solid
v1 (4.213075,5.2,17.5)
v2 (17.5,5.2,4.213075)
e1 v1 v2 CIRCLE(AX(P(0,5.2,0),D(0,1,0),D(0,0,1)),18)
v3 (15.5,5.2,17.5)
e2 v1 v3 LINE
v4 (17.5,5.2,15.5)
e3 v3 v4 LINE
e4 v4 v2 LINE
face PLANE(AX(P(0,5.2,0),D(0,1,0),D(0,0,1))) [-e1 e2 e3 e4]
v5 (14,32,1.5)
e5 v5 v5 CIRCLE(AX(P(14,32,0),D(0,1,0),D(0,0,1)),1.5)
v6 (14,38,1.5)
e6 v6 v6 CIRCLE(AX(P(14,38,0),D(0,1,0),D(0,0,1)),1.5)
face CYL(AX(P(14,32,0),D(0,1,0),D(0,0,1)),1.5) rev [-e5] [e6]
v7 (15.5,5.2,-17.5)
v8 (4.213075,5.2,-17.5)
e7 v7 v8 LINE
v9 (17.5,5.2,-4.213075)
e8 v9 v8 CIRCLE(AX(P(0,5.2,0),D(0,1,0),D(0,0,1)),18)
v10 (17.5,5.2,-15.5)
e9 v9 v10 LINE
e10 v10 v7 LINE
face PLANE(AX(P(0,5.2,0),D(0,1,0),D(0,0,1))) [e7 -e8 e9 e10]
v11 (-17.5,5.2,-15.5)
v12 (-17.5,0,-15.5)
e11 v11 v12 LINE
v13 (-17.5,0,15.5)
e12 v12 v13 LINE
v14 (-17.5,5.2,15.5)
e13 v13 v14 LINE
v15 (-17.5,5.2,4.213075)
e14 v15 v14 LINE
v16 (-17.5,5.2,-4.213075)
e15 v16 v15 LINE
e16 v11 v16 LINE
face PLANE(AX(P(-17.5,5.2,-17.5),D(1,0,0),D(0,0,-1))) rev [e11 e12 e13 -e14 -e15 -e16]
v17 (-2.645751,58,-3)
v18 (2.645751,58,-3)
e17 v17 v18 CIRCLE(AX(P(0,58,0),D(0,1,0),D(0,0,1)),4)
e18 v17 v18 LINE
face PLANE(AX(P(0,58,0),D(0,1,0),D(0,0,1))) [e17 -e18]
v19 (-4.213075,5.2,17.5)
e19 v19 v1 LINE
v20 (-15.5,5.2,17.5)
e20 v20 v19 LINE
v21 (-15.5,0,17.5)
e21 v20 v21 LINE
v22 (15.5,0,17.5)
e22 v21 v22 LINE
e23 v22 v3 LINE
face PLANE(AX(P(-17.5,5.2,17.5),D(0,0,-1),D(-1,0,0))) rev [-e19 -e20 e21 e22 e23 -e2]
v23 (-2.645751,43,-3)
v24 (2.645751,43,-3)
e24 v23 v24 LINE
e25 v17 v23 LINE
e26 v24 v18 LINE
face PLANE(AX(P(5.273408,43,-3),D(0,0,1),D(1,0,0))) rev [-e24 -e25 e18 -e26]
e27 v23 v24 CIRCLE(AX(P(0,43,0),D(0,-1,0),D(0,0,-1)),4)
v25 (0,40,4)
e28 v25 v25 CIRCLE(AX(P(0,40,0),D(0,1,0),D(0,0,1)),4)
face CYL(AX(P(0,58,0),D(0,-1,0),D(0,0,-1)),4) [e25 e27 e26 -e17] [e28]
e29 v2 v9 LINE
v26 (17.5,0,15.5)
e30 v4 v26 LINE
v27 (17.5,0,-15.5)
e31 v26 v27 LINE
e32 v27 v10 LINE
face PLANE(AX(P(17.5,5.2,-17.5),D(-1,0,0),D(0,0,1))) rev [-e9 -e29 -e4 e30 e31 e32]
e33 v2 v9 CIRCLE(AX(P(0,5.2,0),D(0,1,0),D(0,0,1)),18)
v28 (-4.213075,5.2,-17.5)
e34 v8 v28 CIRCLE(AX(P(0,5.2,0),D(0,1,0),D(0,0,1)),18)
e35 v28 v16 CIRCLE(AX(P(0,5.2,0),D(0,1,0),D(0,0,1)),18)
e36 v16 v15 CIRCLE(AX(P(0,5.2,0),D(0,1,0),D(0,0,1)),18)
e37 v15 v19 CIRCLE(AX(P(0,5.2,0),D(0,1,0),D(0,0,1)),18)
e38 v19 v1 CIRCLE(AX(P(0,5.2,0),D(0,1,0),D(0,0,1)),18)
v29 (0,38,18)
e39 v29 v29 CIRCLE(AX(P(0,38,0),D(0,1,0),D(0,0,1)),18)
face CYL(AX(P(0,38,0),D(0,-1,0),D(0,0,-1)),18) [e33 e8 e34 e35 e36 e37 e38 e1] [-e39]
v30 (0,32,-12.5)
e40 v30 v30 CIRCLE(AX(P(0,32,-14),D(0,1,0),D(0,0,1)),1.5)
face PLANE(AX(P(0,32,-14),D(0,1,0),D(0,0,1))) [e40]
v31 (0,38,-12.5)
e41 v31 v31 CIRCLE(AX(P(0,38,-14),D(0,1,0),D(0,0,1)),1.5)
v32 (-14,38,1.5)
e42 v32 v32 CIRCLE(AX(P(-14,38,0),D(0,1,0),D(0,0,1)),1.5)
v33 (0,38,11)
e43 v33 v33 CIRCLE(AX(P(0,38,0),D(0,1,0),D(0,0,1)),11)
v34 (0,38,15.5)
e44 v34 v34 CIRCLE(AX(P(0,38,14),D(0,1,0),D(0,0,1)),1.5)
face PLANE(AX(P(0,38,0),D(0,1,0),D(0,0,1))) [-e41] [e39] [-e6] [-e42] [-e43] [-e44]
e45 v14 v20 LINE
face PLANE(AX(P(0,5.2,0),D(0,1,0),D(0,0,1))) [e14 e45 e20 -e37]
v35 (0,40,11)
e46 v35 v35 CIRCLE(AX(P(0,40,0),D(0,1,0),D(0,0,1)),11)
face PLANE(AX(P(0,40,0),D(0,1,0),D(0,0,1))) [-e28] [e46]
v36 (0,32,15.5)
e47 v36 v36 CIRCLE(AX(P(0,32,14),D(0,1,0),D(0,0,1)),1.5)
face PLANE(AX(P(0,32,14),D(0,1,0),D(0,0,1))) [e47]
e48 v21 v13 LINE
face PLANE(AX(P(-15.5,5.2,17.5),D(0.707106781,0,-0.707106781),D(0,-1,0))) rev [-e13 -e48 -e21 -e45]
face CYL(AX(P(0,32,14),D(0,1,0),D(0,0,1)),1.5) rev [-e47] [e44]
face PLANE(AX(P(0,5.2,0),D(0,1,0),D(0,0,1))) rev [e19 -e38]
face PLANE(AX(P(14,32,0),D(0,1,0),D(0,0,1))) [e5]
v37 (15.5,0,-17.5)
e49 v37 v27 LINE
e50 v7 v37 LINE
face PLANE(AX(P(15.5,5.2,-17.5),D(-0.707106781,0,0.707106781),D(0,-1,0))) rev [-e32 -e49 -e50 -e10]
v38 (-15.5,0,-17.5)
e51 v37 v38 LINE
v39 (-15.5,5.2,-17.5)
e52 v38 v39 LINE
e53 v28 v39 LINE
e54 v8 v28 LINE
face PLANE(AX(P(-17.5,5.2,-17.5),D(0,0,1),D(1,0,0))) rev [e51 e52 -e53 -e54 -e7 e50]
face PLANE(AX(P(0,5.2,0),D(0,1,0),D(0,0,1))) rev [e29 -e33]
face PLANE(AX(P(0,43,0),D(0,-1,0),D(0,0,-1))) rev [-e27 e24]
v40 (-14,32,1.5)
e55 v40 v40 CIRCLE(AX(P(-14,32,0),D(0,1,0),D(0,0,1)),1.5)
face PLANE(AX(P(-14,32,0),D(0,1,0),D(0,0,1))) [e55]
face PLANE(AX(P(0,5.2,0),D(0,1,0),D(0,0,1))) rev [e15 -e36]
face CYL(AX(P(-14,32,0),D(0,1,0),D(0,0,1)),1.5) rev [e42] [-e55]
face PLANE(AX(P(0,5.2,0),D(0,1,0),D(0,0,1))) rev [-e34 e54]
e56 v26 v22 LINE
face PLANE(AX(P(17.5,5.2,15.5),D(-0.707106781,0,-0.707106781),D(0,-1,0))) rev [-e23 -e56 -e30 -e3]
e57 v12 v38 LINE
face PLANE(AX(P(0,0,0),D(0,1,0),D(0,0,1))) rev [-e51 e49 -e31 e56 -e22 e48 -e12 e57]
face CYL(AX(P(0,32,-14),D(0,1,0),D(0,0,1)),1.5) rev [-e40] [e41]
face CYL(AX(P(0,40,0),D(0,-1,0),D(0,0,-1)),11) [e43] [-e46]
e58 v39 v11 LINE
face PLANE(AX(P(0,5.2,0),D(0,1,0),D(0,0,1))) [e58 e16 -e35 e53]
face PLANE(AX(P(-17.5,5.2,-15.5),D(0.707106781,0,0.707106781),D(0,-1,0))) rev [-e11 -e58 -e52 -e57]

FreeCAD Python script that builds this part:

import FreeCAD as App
import Part
import Sketcher
Q = App.Units.Quantity


def edges_at(feature, points):
    """Names of the edges that pass closest to the given points."""
    edges = feature.Shape.Edges
    near = lambda p: min(range(len(edges)), key=lambda i: edges[i].distToShape(Part.Vertex(*p))[0])
    return sorted({f"Edge{near(p) + 1}" for p in points})

doc = App.newDocument("Part")
body = doc.addObject("PartDesign::Body", "Body")

# Sketch on XZ plane
sketch1 = doc.addObject("Sketcher::SketchObject", "Sketch")
body.addObject(sketch1)
sketch1.AttachmentSupport = (doc.XZ_Plane, [""])
sketch1.MapMode = "FlatFace"
sketch1.addGeometry(Part.LineSegment(App.Vector(-17.5, -17.5, 0), App.Vector(-17.5, 17.5, 0)), False)
sketch1.addGeometry(Part.LineSegment(App.Vector(-17.5, 17.5, 0), App.Vector(17.5, 17.5, 0)), False)
sketch1.addGeometry(Part.LineSegment(App.Vector(17.5, 17.5, 0), App.Vector(17.5, -17.5, 0)), False)
sketch1.addGeometry(Part.LineSegment(App.Vector(17.5, -17.5, 0), App.Vector(-17.5, -17.5, 0)), False)
sketch1.addConstraint(Sketcher.Constraint("Coincident", 0, 2, 1, 1))
sketch1.addConstraint(Sketcher.Constraint("Coincident", 1, 2, 2, 1))
sketch1.addConstraint(Sketcher.Constraint("Coincident", 2, 2, 3, 1))
sketch1.addConstraint(Sketcher.Constraint("Coincident", 3, 2, 0, 1))
sketch1.addConstraint(Sketcher.Constraint("Vertical", 0))
sketch1.addConstraint(Sketcher.Constraint("Horizontal", 1))
sketch1.addConstraint(Sketcher.Constraint("Vertical", 2))
sketch1.addConstraint(Sketcher.Constraint("Horizontal", 3))
sketch1.addConstraint(Sketcher.Constraint("Symmetric", 0, 2, 2, 2, -1, 1))
sketch1.addConstraint(Sketcher.Constraint("Equal", 3, 0))
sketch1.addConstraint(Sketcher.Constraint("DistanceX", 1, 1, 1, 2, Q("35 mm")))
pad1 = doc.addObject("PartDesign::Pad", "Pad")
body.addObject(pad1)
pad1.Profile = sketch1
pad1.Length = 5.2
pad1.Reversed = True

# Sketch on XZ plane
sketch2 = doc.addObject("Sketcher::SketchObject", "Sketch001")
body.addObject(sketch2)
sketch2.AttachmentSupport = (doc.XZ_Plane, [""])
sketch2.MapMode = "FlatFace"
sketch2.AttachmentOffset = App.Placement(App.Vector(0, 0, -5.2), App.Rotation())
sketch2.addGeometry(Part.Circle(App.Vector(0, 0, 0), App.Vector(0, 0, 1), 18), False)
sketch2.addConstraint(Sketcher.Constraint("Coincident", 0, 3, -1, 1))
sketch2.addConstraint(Sketcher.Constraint("Diameter", 0, Q("36 mm")))
pad2 = doc.addObject("PartDesign::Pad", "Pad001")
body.addObject(pad2)
pad2.Profile = sketch2
pad2.Length = 32.8
pad2.Reversed = True

# Sketch on XZ plane
sketch3 = doc.addObject("Sketcher::SketchObject", "Sketch002")
body.addObject(sketch3)
sketch3.AttachmentSupport = (doc.XZ_Plane, [""])
sketch3.MapMode = "FlatFace"
sketch3.AttachmentOffset = App.Placement(App.Vector(0, 0, -38), App.Rotation())
sketch3.addGeometry(Part.Circle(App.Vector(0, 0, 0), App.Vector(0, 0, 1), 11), False)
sketch3.addConstraint(Sketcher.Constraint("Coincident", 0, 3, -1, 1))
sketch3.addConstraint(Sketcher.Constraint("Diameter", 0, Q("22 mm")))
pad3 = doc.addObject("PartDesign::Pad", "Pad002")
body.addObject(pad3)
pad3.Profile = sketch3
pad3.Length = 2
pad3.Reversed = True

# Sketch on XZ plane
sketch4 = doc.addObject("Sketcher::SketchObject", "Sketch003")
body.addObject(sketch4)
sketch4.AttachmentSupport = (doc.XZ_Plane, [""])
sketch4.MapMode = "FlatFace"
sketch4.AttachmentOffset = App.Placement(App.Vector(0, 0, -40), App.Rotation())
sketch4.addGeometry(Part.Circle(App.Vector(0, 0, 0), App.Vector(0, 0, 1), 4), False)
sketch4.addConstraint(Sketcher.Constraint("Coincident", 0, 3, -1, 1))
sketch4.addConstraint(Sketcher.Constraint("Diameter", 0, Q("8 mm")))
pad4 = doc.addObject("PartDesign::Pad", "Pad003")
body.addObject(pad4)
pad4.Profile = sketch4
pad4.Length = 18
pad4.Reversed = True

# Sketch on XZ plane
sketch5 = doc.addObject("Sketcher::SketchObject", "Sketch004")
body.addObject(sketch5)
sketch5.AttachmentSupport = (doc.XZ_Plane, [""])
sketch5.MapMode = "FlatFace"
sketch5.AttachmentOffset = App.Placement(App.Vector(0, 0, -58), App.Rotation())
sketch5.addGeometry(Part.LineSegment(App.Vector(-5.273408, -10.766292, 0), App.Vector(-5.273408, -3, 0)), False)
sketch5.addGeometry(Part.LineSegment(App.Vector(-5.273408, -3, 0), App.Vector(5.273408, -3, 0)), False)
sketch5.addGeometry(Part.LineSegment(App.Vector(5.273408, -3, 0), App.Vector(5.273408, -10.766292, 0)), False)
sketch5.addGeometry(Part.LineSegment(App.Vector(5.273408, -10.766292, 0), App.Vector(-5.273408, -10.766292, 0)), False)
sketch5.addConstraint(Sketcher.Constraint("Coincident", 0, 2, 1, 1))
sketch5.addConstraint(Sketcher.Constraint("Coincident", 1, 2, 2, 1))
sketch5.addConstraint(Sketcher.Constraint("Coincident", 2, 2, 3, 1))
sketch5.addConstraint(Sketcher.Constraint("Coincident", 3, 2, 0, 1))
sketch5.addConstraint(Sketcher.Constraint("Vertical", 0))
sketch5.addConstraint(Sketcher.Constraint("Horizontal", 1))
sketch5.addConstraint(Sketcher.Constraint("Vertical", 2))
sketch5.addConstraint(Sketcher.Constraint("Horizontal", 3))
sketch5.addConstraint(Sketcher.Constraint("DistanceY", 0, 2, -1, 1, Q("3 mm")))
sketch5.addConstraint(Sketcher.Constraint("DistanceX", 1, 1, 1, 2, Q("10.546816 mm")))
sketch5.addConstraint(Sketcher.Constraint("DistanceY", 0, 1, 0, 2, Q("7.766292 mm")))
sketch5.addConstraint(Sketcher.Constraint("DistanceX", 0, 2, -1, 1, Q("5.273408 mm")))
pocket1 = doc.addObject("PartDesign::Pocket", "Pocket")
body.addObject(pocket1)
pocket1.Profile = sketch5
pocket1.Length = 15
pocket1.Reversed = True
doc.recompute()

chamfer = doc.addObject("PartDesign::Chamfer", "Chamfer")
body.addObject(chamfer)
chamfer.Base = (pocket1, edges_at(pocket1, [
    (17.5, 2.6, 17.5),
    (-17.5, 2.6, 17.5),
    (-17.5, 2.6, -17.5),
    (17.5, 2.6, -17.5),
]))
chamfer.Size = 2

# Sketch on XZ plane
sketch6 = doc.addObject("Sketcher::SketchObject", "Sketch005")
body.addObject(sketch6)
sketch6.AttachmentSupport = (doc.XZ_Plane, [""])
sketch6.MapMode = "FlatFace"
sketch6.AttachmentOffset = App.Placement(App.Vector(0, 0, -38), App.Rotation())
sketch6.addGeometry(Part.Circle(App.Vector(0, -14, 0), App.Vector(0, 0, 1), 1.5), False)
sketch6.addGeometry(Part.Circle(App.Vector(14, 0, 0), App.Vector(0, 0, 1), 1.5), False)
sketch6.addGeometry(Part.Circle(App.Vector(0, 14, 0), App.Vector(0, 0, 1), 1.5), False)
sketch6.addGeometry(Part.Circle(App.Vector(-14, 0, 0), App.Vector(0, 0, 1), 1.5), False)
sketch6.addConstraint(Sketcher.Constraint("Equal", 0, 1))
sketch6.addConstraint(Sketcher.Constraint("Equal", 1, 2))
sketch6.addConstraint(Sketcher.Constraint("Equal", 2, 3))
sketch6.addConstraint(Sketcher.Constraint("Symmetric", 0, 3, 2, 3, -1, 1))
sketch6.addConstraint(Sketcher.Constraint("Symmetric", 1, 3, 3, 3, -1, 1))
sketch6.addConstraint(Sketcher.Constraint("PointOnObject", 0, 3, -2))
sketch6.addConstraint(Sketcher.Constraint("PointOnObject", 1, 3, -1))
sketch6.addConstraint(Sketcher.Constraint("Diameter", 0, Q("3 mm")))
sketch6.addConstraint(Sketcher.Constraint("DistanceY", 0, 3, -1, 1, Q("14 mm")))
sketch6.addConstraint(Sketcher.Constraint("DistanceX", -1, 1, 1, 3, Q("14 mm")))
pocket2 = doc.addObject("PartDesign::Pocket", "Pocket001")
body.addObject(pocket2)
pocket2.Profile = sketch6
pocket2.Length = 6
pocket2.Reversed = True

doc.recompute()
